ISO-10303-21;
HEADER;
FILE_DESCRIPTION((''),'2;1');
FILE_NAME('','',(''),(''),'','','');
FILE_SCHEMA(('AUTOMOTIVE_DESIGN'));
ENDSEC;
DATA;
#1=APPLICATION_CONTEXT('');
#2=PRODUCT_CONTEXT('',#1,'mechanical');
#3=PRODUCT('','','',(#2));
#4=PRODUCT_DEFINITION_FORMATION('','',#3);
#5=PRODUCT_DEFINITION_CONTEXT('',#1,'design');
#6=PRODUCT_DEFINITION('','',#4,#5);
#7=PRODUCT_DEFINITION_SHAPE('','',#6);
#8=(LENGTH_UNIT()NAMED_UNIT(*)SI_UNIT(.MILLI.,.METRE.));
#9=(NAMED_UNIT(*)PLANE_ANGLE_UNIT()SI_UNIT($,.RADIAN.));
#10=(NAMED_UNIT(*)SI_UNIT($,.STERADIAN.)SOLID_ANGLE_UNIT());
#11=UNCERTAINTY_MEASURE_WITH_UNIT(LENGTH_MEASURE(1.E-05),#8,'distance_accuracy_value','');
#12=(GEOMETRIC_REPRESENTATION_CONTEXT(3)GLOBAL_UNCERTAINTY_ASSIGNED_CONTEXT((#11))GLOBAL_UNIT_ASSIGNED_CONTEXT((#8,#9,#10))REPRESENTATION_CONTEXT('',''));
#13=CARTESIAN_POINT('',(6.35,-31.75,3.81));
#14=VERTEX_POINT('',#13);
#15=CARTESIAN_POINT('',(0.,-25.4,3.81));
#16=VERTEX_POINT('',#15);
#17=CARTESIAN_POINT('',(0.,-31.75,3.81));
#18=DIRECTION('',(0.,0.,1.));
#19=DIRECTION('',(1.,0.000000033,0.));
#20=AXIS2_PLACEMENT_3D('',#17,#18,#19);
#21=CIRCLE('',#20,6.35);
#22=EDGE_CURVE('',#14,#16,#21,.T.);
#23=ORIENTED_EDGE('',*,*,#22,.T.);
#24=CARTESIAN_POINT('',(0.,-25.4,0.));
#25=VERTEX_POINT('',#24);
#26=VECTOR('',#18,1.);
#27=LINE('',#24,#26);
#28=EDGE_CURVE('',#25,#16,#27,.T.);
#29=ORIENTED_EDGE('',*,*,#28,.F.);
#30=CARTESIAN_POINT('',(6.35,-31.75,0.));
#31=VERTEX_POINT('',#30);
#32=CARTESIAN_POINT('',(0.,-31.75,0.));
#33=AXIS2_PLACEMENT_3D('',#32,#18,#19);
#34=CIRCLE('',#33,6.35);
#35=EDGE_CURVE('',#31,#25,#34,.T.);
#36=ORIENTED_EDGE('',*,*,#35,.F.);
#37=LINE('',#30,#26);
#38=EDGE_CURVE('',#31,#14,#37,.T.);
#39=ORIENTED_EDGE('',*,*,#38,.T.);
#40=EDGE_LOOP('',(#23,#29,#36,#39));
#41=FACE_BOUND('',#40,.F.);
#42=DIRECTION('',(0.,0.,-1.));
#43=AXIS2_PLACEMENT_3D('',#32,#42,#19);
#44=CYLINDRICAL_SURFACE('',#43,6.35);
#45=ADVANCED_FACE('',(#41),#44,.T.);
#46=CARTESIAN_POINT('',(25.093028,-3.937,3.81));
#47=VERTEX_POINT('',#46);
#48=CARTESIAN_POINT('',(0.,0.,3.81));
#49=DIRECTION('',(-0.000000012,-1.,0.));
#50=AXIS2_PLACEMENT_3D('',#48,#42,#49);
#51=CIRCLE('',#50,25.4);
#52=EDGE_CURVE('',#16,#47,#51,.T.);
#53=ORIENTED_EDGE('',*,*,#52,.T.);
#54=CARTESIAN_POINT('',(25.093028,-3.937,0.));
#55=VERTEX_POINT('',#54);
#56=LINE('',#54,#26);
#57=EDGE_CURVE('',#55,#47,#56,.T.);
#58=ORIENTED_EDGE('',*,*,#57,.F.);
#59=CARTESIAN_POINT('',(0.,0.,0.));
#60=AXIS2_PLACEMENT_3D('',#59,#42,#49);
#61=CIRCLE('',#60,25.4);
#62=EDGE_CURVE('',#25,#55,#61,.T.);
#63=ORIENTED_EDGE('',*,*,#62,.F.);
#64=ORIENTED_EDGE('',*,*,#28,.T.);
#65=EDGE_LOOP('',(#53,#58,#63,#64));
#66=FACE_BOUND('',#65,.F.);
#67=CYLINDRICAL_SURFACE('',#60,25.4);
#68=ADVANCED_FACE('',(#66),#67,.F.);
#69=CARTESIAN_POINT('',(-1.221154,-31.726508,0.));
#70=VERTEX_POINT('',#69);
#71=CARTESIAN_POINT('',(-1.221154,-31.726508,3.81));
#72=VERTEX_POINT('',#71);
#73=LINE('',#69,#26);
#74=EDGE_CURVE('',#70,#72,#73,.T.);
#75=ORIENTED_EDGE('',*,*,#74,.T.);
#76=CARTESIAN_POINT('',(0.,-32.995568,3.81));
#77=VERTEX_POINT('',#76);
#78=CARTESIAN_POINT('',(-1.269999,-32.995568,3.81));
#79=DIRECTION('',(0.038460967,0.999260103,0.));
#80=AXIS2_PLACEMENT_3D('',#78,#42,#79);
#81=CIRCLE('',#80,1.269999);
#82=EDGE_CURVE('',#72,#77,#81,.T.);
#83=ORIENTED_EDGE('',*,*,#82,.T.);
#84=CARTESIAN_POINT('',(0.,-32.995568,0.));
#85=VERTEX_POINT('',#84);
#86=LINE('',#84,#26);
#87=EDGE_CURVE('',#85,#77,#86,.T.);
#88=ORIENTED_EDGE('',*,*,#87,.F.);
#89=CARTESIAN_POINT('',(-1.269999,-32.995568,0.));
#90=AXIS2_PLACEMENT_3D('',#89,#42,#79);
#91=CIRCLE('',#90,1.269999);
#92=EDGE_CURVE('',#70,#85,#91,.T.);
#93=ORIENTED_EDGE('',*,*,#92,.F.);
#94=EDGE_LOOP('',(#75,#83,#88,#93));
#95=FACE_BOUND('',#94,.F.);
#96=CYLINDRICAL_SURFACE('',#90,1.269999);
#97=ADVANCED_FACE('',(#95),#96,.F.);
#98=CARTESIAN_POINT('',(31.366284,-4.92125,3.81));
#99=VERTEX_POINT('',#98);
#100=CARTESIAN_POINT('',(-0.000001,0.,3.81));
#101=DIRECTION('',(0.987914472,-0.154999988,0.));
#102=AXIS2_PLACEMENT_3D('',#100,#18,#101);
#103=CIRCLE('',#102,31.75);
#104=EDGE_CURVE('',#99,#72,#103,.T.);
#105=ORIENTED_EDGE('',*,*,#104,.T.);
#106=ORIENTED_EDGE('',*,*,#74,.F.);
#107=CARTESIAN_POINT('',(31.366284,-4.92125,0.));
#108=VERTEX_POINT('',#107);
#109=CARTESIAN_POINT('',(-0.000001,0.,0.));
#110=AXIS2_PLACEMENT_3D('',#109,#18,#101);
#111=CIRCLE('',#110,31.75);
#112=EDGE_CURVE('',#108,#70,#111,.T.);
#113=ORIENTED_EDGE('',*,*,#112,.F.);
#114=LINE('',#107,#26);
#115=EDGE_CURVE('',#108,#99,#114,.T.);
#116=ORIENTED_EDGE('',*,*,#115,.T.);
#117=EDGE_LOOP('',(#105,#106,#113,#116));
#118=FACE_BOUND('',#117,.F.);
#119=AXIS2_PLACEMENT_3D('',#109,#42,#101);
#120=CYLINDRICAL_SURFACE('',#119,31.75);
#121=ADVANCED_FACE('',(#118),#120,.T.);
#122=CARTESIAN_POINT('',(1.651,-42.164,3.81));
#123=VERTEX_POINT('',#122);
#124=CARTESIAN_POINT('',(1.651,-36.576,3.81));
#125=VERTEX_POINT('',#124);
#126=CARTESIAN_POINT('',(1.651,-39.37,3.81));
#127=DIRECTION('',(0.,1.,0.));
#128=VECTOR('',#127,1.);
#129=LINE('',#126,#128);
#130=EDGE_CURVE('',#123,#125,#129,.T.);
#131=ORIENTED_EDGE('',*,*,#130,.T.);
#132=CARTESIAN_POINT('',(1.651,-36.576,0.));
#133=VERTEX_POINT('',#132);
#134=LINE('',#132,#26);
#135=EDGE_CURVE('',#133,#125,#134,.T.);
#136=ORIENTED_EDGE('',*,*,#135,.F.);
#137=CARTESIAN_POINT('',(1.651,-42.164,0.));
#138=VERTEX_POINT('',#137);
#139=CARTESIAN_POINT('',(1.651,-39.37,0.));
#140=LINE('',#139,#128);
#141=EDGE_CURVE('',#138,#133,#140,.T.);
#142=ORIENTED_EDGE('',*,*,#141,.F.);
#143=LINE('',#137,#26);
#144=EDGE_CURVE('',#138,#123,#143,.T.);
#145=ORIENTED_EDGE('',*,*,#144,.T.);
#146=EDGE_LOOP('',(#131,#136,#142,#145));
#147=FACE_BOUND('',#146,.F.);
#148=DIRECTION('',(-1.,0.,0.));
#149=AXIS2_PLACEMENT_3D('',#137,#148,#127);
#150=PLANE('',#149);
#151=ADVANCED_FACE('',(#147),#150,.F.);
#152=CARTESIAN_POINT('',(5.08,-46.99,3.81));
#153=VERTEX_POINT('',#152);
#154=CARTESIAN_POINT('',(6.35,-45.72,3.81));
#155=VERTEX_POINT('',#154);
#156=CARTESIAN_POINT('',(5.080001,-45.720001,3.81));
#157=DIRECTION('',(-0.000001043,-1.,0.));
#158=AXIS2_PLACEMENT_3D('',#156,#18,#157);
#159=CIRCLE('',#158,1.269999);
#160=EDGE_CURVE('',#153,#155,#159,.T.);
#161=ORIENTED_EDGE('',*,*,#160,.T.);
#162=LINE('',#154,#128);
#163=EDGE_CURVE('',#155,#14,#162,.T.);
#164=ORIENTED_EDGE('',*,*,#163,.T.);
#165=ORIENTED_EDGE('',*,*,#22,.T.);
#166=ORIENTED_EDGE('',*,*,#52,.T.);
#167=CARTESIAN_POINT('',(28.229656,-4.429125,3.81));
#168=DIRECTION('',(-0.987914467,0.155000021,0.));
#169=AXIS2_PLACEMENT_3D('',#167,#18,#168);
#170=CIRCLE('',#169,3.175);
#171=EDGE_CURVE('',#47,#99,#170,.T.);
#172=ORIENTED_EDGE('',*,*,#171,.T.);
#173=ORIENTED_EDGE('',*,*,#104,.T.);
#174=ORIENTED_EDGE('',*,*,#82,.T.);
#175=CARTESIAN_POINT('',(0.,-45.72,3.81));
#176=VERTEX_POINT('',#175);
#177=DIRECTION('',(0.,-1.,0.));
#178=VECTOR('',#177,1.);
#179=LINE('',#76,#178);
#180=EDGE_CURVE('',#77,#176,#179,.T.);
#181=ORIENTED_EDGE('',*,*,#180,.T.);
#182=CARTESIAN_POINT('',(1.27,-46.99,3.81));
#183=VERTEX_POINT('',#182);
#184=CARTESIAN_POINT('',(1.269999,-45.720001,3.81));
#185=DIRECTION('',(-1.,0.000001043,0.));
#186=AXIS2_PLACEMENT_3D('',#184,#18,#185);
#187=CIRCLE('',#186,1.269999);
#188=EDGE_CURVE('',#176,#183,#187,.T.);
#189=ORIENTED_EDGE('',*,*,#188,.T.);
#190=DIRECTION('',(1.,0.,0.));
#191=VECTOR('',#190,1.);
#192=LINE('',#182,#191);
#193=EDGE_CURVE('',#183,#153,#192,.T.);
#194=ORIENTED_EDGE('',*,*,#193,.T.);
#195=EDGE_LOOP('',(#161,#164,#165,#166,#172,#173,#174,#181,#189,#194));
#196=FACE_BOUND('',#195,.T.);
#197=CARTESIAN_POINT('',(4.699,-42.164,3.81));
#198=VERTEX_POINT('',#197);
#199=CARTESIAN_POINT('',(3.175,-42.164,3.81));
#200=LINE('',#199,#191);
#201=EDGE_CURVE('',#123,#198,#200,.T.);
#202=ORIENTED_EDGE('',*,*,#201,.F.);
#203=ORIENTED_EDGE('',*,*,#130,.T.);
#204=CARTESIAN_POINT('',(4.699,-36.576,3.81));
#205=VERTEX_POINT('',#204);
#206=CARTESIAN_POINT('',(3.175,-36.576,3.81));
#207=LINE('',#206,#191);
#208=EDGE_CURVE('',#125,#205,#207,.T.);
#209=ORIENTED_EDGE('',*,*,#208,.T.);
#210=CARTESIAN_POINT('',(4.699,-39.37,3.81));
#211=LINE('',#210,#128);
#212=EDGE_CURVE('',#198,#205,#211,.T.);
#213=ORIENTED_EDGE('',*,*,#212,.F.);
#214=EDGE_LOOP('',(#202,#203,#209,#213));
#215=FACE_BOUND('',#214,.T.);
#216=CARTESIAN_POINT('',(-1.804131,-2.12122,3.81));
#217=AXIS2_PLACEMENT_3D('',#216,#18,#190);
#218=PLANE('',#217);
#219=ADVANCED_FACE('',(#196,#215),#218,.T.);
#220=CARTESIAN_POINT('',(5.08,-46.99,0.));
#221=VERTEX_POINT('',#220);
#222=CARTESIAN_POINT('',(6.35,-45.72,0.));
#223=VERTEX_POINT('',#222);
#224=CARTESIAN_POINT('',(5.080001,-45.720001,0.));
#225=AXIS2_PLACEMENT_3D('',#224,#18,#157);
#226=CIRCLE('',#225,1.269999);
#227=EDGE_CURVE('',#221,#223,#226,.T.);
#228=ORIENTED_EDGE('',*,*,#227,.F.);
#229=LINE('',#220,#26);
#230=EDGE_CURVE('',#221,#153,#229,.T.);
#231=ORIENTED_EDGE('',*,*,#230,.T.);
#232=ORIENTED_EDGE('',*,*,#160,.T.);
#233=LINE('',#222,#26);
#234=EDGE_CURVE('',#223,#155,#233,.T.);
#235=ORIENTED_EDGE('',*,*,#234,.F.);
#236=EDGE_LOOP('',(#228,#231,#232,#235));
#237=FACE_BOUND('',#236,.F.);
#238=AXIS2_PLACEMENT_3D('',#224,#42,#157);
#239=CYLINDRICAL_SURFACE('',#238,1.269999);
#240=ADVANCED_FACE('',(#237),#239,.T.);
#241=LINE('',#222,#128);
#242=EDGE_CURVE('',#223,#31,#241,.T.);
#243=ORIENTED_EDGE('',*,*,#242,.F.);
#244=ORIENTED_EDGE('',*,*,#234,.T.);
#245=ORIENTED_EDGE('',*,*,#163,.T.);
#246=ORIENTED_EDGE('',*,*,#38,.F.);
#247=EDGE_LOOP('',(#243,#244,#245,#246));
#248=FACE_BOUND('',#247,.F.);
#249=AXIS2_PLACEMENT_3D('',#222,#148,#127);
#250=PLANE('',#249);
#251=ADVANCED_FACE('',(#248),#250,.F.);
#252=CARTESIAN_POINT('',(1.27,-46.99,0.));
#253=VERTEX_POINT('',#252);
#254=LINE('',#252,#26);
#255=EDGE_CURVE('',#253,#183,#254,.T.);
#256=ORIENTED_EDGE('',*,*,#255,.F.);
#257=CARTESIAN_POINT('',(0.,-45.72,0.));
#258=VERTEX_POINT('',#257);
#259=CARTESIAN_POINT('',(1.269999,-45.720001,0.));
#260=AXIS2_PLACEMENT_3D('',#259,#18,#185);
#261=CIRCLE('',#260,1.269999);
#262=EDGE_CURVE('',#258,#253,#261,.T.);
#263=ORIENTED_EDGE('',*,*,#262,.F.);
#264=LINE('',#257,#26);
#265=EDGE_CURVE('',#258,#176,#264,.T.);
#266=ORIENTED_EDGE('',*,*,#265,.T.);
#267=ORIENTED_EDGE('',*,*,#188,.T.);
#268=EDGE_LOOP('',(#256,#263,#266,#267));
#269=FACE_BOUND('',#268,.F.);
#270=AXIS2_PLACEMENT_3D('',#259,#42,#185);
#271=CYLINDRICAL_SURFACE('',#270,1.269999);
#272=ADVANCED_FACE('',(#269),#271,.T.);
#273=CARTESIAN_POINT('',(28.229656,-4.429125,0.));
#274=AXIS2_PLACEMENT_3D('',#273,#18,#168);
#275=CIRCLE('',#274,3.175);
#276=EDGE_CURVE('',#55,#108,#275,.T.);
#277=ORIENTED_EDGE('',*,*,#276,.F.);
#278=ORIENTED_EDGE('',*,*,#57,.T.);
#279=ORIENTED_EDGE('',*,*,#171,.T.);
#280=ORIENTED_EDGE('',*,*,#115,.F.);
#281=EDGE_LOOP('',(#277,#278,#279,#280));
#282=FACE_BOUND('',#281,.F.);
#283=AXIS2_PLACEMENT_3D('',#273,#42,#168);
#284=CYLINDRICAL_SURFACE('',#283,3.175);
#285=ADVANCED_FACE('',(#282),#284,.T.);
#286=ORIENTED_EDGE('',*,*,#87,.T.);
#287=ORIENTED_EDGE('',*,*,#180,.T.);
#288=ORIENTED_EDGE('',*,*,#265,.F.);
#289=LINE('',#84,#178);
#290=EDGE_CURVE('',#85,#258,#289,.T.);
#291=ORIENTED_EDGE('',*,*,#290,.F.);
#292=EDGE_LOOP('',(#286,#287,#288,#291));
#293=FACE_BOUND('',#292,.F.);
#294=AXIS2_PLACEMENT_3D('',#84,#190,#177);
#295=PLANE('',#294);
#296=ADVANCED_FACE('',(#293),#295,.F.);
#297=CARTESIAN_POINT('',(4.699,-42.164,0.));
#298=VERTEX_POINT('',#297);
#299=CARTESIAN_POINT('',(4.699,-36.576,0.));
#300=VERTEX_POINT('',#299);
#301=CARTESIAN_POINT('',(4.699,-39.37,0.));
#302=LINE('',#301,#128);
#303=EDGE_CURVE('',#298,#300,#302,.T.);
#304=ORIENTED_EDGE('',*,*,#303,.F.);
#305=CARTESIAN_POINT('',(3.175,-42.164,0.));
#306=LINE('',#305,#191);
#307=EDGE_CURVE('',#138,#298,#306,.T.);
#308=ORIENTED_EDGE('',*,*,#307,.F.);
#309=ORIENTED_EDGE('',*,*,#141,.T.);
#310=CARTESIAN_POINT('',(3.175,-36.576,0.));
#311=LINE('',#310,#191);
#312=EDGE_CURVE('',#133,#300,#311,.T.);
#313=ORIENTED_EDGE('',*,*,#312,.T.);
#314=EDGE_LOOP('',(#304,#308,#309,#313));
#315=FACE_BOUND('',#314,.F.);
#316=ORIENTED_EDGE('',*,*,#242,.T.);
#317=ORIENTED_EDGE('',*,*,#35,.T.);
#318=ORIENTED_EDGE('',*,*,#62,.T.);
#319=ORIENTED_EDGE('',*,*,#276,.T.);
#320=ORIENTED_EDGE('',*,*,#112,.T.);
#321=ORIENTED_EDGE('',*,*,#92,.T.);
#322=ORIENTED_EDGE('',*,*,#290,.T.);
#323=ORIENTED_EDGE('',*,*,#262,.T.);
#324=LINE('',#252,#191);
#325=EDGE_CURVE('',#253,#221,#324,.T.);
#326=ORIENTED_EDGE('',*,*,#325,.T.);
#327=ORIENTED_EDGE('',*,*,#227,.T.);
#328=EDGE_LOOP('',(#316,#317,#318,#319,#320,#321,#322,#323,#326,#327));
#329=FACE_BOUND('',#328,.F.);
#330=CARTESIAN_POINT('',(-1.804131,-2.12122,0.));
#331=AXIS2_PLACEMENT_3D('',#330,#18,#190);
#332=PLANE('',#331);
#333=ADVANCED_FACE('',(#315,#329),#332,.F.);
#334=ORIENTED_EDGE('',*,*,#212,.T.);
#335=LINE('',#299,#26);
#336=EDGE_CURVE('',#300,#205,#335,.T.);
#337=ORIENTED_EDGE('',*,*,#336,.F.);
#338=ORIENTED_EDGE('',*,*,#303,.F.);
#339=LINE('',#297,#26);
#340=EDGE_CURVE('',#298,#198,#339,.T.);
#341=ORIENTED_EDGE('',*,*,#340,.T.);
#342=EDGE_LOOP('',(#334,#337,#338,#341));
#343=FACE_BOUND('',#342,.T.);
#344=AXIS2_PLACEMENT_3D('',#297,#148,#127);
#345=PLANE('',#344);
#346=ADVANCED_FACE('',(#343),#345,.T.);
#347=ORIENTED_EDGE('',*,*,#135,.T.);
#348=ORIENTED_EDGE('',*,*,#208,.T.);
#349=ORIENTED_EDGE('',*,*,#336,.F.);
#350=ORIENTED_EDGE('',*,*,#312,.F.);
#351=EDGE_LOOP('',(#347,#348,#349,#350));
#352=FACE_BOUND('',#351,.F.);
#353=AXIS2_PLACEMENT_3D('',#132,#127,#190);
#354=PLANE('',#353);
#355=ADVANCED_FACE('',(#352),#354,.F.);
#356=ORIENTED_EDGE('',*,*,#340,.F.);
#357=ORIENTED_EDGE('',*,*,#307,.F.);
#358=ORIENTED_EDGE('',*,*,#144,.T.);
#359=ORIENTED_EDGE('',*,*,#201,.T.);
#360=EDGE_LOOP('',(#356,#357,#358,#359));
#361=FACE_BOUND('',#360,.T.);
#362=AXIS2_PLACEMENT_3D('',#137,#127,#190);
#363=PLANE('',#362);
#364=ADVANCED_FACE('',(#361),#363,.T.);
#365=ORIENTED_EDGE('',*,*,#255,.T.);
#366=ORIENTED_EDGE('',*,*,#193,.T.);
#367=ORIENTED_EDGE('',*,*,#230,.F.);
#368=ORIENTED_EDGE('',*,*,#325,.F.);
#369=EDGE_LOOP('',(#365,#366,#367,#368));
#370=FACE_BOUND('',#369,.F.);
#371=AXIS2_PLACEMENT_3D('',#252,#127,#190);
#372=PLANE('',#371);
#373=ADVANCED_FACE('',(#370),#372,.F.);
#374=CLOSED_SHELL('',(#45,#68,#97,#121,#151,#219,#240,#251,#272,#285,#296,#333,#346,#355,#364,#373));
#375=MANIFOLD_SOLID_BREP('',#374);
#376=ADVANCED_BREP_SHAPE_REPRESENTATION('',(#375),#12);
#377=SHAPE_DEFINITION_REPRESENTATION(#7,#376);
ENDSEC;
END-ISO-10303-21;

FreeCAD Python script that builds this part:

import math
import FreeCAD as App
import Part
import Sketcher
from FreeCAD import Vector
Q = App.Units.Quantity

doc = App.newDocument("Part")
body = doc.addObject("PartDesign::Body", "Body")

sketch1 = body.newObject("Sketcher::SketchObject", "Sketch")
sketch1.AttachmentSupport = (doc.getObject("XY_Plane"), [""])
sketch1.MapMode = "FlatFace"
sketch1.addGeometry(Part.ArcOfCircle(Part.Circle(Vector(0, 0, 0), Vector(0, 0, 1), 25.4), math.radians(-8.916797), math.radians(269.999999)), False)
sketch1.addGeometry(Part.ArcOfCircle(Part.Circle(Vector(28.229656, -4.429125, 0), Vector(0, 0, 1), 3.175), math.radians(171.083203), math.radians(351.083203)), False)
sketch1.addGeometry(Part.ArcOfCircle(Part.Circle(Vector(-0.000001, 0, 0), Vector(0, 0, 1), 31.75), math.radians(-8.916796), math.radians(267.795773)), False)
sketch1.addGeometry(Part.ArcOfCircle(Part.Circle(Vector(-1.269999, -32.995568, 0), Vector(0, 0, 1), 1.269999), math.radians(-0.000012), math.radians(87.795805)), False)
sketch1.addGeometry(Part.LineSegment(Vector(0, -32.995568, 0), Vector(0, -45.72, 0)), False)
sketch1.addGeometry(Part.ArcOfCircle(Part.Circle(Vector(1.269999, -45.720001, 0), Vector(0, 0, 1), 1.269999), math.radians(179.99994), math.radians(270.00006)), False)
sketch1.addGeometry(Part.LineSegment(Vector(1.27, -46.99, 0), Vector(5.08, -46.99, 0)), False)
sketch1.addGeometry(Part.ArcOfCircle(Part.Circle(Vector(5.080001, -45.720001, 0), Vector(0, 0, 1), 1.269999), math.radians(-90.00006), math.radians(0.00006)), False)
sketch1.addGeometry(Part.LineSegment(Vector(6.35, -45.72, 0), Vector(6.35, -31.75, 0)), False)
sketch1.addGeometry(Part.ArcOfCircle(Part.Circle(Vector(0, -31.75, 0), Vector(0, 0, 1), 6.35), math.radians(0.000002), math.radians(89.999998)), False)
sketch1.addGeometry(Part.LineSegment(Vector(4.699, -42.164, 0), Vector(1.651, -42.164, 0)), False)
sketch1.addGeometry(Part.LineSegment(Vector(1.651, -42.164, 0), Vector(1.651, -36.576, 0)), False)
sketch1.addGeometry(Part.LineSegment(Vector(1.651, -36.576, 0), Vector(4.699, -36.576, 0)), False)
sketch1.addGeometry(Part.LineSegment(Vector(4.699, -36.576, 0), Vector(4.699, -42.164, 0)), False)
sketch1.addConstraint(Sketcher.Constraint("Tangent", 0, 1, 1, 1))
sketch1.addConstraint(Sketcher.Constraint("Tangent", 1, 2, 2, 1))
sketch1.addConstraint(Sketcher.Constraint("Tangent", 2, 2, 3, 2))
sketch1.addConstraint(Sketcher.Constraint("Tangent", 3, 1, 4, 1))
sketch1.addConstraint(Sketcher.Constraint("Tangent", 4, 2, 5, 1))
sketch1.addConstraint(Sketcher.Constraint("Tangent", 5, 2, 6, 1))
sketch1.addConstraint(Sketcher.Constraint("Tangent", 6, 2, 7, 1))
sketch1.addConstraint(Sketcher.Constraint("Tangent", 7, 2, 8, 1))
sketch1.addConstraint(Sketcher.Constraint("Tangent", 8, 2, 9, 1))
sketch1.addConstraint(Sketcher.Constraint("Tangent", 9, 2, 0, 2))
sketch1.addConstraint(Sketcher.Constraint("Coincident", 10, 2, 11, 1))
sketch1.addConstraint(Sketcher.Constraint("Coincident", 11, 2, 12, 1))
sketch1.addConstraint(Sketcher.Constraint("Coincident", 12, 2, 13, 1))
sketch1.addConstraint(Sketcher.Constraint("Coincident", 13, 2, 10, 1))
sketch1.addConstraint(Sketcher.Constraint("Vertical", 4))
sketch1.addConstraint(Sketcher.Constraint("Horizontal", 6))
sketch1.addConstraint(Sketcher.Constraint("Vertical", 8))
sketch1.addConstraint(Sketcher.Constraint("Horizontal", 10))
sketch1.addConstraint(Sketcher.Constraint("Vertical", 11))
sketch1.addConstraint(Sketcher.Constraint("Horizontal", 12))
sketch1.addConstraint(Sketcher.Constraint("Vertical", 13))
sketch1.addConstraint(Sketcher.Constraint("Coincident", 0, 3, -1, 1))
sketch1.addConstraint(Sketcher.Constraint("Coincident", 2, 3, -1, 1))
sketch1.addConstraint(Sketcher.Constraint("Equal", 3, 5))
sketch1.addConstraint(Sketcher.Constraint("Equal", 5, 7))
sketch1.addConstraint(Sketcher.Constraint("PointOnObject", 9, 3, -2))
sketch1.addConstraint(Sketcher.Constraint("PointOnObject", 3, 1, -2))
sketch1.addConstraint(Sketcher.Constraint("Radius", 0, Q("1 in")))
sketch1.addConstraint(Sketcher.Constraint("Radius", 2, Q("1.25 in")))
sketch1.addConstraint(Sketcher.Constraint("Radius", 3, Q("0.05 in")))
sketch1.addConstraint(Sketcher.Constraint("Radius", 9, Q("0.25 in")))
sketch1.addConstraint(Sketcher.Constraint("DistanceX", 10, 2, 10, 1, Q("0.12 in")))
sketch1.addConstraint(Sketcher.Constraint("DistanceY", 8, 1, 8, 2, Q("0.55 in")))
sketch1.addConstraint(Sketcher.Constraint("DistanceY", 11, 1, 11, 2, Q("0.22 in")))
sketch1.addConstraint(Sketcher.Constraint("DistanceY", 10, 2, -1, 1, Q("1.66 in")))
sketch1.addConstraint(Sketcher.Constraint("DistanceY", 0, 1, -1, 1, Q("0.155 in")))
sketch1.addConstraint(Sketcher.Constraint("DistanceX", -1, 1, 10, 2, Q("0.065 in")))
pad1 = body.newObject("PartDesign::Pad", "Pad")
pad1.Profile = sketch1
pad1.Length = Q("0.15 in")

doc.recompute()
